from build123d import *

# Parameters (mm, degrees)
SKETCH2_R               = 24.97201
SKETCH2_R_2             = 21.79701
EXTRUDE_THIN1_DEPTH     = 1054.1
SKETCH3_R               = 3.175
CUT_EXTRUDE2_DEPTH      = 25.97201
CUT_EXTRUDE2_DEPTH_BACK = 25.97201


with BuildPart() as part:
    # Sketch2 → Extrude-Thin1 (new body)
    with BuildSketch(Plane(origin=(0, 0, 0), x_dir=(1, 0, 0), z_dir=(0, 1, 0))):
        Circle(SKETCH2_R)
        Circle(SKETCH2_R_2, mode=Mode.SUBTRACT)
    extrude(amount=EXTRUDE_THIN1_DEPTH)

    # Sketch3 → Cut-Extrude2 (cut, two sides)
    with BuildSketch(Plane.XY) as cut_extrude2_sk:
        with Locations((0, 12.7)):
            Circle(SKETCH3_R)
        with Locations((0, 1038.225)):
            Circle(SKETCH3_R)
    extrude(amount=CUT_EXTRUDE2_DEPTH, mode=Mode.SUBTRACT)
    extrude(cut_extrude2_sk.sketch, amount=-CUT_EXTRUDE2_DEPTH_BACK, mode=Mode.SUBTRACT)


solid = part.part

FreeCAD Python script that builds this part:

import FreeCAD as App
import Part
import Sketcher
from FreeCAD import Vector
Q = App.Units.Quantity

doc = App.newDocument("Part")
params = doc.addObject("Spreadsheet::Sheet", "Params")
for row, (alias, value) in enumerate([
    ("pad1_length", "41.5 in"),
    ("sketch2_diameter", "0.25 in"),
], start=1):
    params.set(f"A{row}", alias)
    params.set(f"B{row}", "=" + value)
    params.setAlias(f"B{row}", alias)

body = doc.addObject("PartDesign::Body", "Body")

sketch1 = body.newObject("Sketcher::SketchObject", "Sketch")
sketch1.AttachmentSupport = (doc.getObject("XZ_Plane"), [""])
sketch1.MapMode = "FlatFace"
sketch1.addGeometry([
    Part.Circle(Vector(0, 0, 0), Vector(0, 0, 1), 25),
    Part.Circle(Vector(0, 0, 0), Vector(0, 0, 1), 22),
], False)
sketch1.addConstraint([
    Sketcher.Constraint("Coincident", 0, 3, -1, 1),
    Sketcher.Constraint("Coincident", 1, 3, -1, 1),
    Sketcher.Constraint("Diameter", 0, Q("1.9663 in")),
    Sketcher.Constraint("Diameter", 1, Q("1.7163 in")),
])
pad1 = body.newObject("PartDesign::Pad", "Pad")
pad1.Profile = sketch1
pad1.setExpression("Length", "Params.pad1_length")
pad1.Reversed = True

sketch2 = body.newObject("Sketcher::SketchObject", "Sketch001")
sketch2.AttachmentSupport = (doc.getObject("XY_Plane"), [""])
sketch2.MapMode = "FlatFace"
sketch2.addGeometry([
    Part.Circle(Vector(0, 12.7, 0), Vector(0, 0, 1), 3.2),
    Part.Circle(Vector(0, 1038.2, 0), Vector(0, 0, 1), 3.2),
], False)
sketch2.addConstraint([
    Sketcher.Constraint("Equal", 0, 1),
    Sketcher.Constraint("PointOnObject", 0, 3, -2),
    Sketcher.Constraint("PointOnObject", 1, 3, -2),
    Sketcher.Constraint("Diameter", 0, Q("0.25 in")),
    Sketcher.Constraint("DistanceY", -1, 1, 0, 3, Q("0.5 in")),
    Sketcher.Constraint("DistanceY", -1, 1, 1, 3, Q("40.875 in")),
])
sketch2.setExpression("Constraints[3]", "Params.sketch2_diameter")
pocket1 = body.newObject("PartDesign::Pocket", "Pocket")
pocket1.Profile = sketch2
pocket1.Type = "ThroughAll"
pocket1.Midplane = True

doc.recompute()
